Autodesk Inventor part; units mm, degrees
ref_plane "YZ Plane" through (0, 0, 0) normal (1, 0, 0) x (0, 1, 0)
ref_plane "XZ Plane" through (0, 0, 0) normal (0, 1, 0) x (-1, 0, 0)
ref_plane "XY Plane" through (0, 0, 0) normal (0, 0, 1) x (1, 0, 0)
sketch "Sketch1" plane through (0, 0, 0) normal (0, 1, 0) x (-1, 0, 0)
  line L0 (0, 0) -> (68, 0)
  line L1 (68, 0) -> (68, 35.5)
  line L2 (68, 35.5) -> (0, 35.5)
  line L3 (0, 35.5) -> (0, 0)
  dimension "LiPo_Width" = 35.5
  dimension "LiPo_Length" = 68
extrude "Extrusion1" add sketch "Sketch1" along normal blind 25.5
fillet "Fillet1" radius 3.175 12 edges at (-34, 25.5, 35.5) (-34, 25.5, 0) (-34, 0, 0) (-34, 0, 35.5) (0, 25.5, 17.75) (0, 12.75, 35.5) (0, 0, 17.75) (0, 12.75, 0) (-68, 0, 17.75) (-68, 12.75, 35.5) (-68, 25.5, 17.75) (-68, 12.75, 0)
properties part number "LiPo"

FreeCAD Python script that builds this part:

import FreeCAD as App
import Part
import Sketcher

V = App.Vector
Q = App.Units.Quantity

doc = App.newDocument("Part")
body = doc.addObject("PartDesign::Body", "Body")

sketch1 = doc.addObject("Sketcher::SketchObject", "Sketch")
body.addObject(sketch1)
sketch1.AttachmentSupport = (doc.XZ_Plane, [""])
sketch1.MapMode = "FlatFace"
sketch1.addGeometry([
    Part.LineSegment(V(0, 35.5, 0), V(0, 0, 0)),
    Part.LineSegment(V(0, 0, 0), V(-68, 0, 0)),
    Part.LineSegment(V(-68, 0, 0), V(-68, 35.5, 0)),
    Part.LineSegment(V(-68, 35.5, 0), V(0, 35.5, 0)),
], False)
sketch1.addConstraint([
    Sketcher.Constraint("Coincident", 0, 2, 1, 1),
    Sketcher.Constraint("Coincident", 1, 2, 2, 1),
    Sketcher.Constraint("Coincident", 2, 2, 3, 1),
    Sketcher.Constraint("Coincident", 3, 2, 0, 1),
    Sketcher.Constraint("Vertical", 0),
    Sketcher.Constraint("Horizontal", 1),
    Sketcher.Constraint("Vertical", 2),
    Sketcher.Constraint("Horizontal", 3),
    Sketcher.Constraint("Coincident", 0, 2, -1, 1),
    Sketcher.Constraint("DistanceX", 1, 2, 1, 1, Q("68 mm")),
    Sketcher.Constraint("DistanceY", 0, 2, 0, 1, Q("35.5 mm")),
])
pad1 = doc.addObject("PartDesign::Pad", "Pad")
body.addObject(pad1)
pad1.Profile = sketch1
pad1.Length = 25.5
pad1.Reversed = True
doc.recompute()

fillet = doc.addObject("PartDesign::Fillet", "Fillet")
body.addObject(fillet)
fillet.Base = (pad1, ["Edge1"])
fillet.UseAllEdges = True
fillet.Radius = 3.175

doc.recompute()
